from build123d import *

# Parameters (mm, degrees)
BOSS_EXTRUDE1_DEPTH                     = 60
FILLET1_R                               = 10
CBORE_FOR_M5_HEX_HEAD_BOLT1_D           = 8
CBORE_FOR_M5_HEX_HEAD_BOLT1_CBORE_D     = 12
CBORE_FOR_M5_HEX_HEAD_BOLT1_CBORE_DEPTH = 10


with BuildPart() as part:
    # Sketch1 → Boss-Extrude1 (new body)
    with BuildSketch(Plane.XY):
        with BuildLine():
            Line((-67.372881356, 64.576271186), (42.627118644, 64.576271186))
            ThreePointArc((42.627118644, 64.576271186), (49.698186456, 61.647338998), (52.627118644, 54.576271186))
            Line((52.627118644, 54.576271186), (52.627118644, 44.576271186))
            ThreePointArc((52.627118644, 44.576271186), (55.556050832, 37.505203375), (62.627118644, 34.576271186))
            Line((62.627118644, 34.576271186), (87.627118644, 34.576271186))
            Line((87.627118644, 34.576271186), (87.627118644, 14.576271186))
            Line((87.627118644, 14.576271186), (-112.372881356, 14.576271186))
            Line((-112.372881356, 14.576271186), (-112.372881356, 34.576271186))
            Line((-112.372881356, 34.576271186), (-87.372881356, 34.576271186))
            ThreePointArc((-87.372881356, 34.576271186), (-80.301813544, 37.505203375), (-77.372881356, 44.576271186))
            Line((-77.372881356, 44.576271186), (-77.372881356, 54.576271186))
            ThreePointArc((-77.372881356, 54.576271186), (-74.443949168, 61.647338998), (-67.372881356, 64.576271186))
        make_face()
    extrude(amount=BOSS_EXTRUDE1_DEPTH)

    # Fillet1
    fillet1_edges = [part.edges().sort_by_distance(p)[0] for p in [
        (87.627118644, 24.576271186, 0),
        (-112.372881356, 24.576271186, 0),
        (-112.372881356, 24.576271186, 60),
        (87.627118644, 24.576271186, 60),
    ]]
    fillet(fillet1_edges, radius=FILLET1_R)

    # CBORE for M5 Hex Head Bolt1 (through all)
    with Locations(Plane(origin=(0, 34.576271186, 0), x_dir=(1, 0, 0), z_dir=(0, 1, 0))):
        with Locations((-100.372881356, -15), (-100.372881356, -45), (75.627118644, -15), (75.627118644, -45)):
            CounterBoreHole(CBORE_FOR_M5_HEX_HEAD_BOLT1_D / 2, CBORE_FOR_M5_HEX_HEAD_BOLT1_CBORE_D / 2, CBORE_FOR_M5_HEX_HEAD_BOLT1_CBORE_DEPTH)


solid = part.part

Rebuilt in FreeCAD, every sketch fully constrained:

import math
import FreeCAD as App
import Part
import Sketcher

V = App.Vector
Q = App.Units.Quantity


def edges_at(feature, points):
    """Names of the edges that pass closest to the given points."""
    edges = feature.Shape.Edges
    near = lambda p: min(range(len(edges)), key=lambda i: edges[i].distToShape(Part.Vertex(*p))[0])
    return sorted({f"Edge{near(p) + 1}" for p in points})

doc = App.newDocument("Part")
body = doc.addObject("PartDesign::Body", "Body")

# Sketch on XY plane
sketch1 = doc.addObject("Sketcher::SketchObject", "Sketch")
body.addObject(sketch1)
sketch1.AttachmentSupport = (doc.XY_Plane, [""])
sketch1.MapMode = "FlatFace"
sketch1.addGeometry([
    Part.LineSegment(V(43, 65, 0), V(-67, 65, 0)),  # 0
    Part.ArcOfCircle(Part.Circle(V(-67, 55, 0), V(0, 0, 1), 10), math.radians(90), math.radians(180)),  # 1
    Part.LineSegment(V(-77, 55, 0), V(-77, 45, 0)),  # 2
    Part.ArcOfCircle(Part.Circle(V(-87, 45, 0), V(0, 0, 1), 10), math.radians(-90), math.radians(0)),  # 3
    Part.LineSegment(V(-87, 35, 0), V(-112, 35, 0)),  # 4
    Part.LineSegment(V(-112, 35, 0), V(-112, 15, 0)),  # 5
    Part.LineSegment(V(-112, 15, 0), V(88, 15, 0)),  # 6
    Part.LineSegment(V(88, 15, 0), V(88, 35, 0)),  # 7
    Part.LineSegment(V(88, 35, 0), V(63, 35, 0)),  # 8
    Part.ArcOfCircle(Part.Circle(V(63, 45, 0), V(0, 0, 1), 10), math.radians(-180), math.radians(-90)),  # 9
    Part.LineSegment(V(53, 45, 0), V(53, 55, 0)),  # 10
    Part.ArcOfCircle(Part.Circle(V(43, 55, 0), V(0, 0, 1), 10), math.radians(0), math.radians(90)),  # 11
], False)
sketch1.addConstraint([
    Sketcher.Constraint("Tangent", 0, 2, 1, 1),
    Sketcher.Constraint("Tangent", 1, 2, 2, 1),
    Sketcher.Constraint("Tangent", 2, 2, 3, 2),
    Sketcher.Constraint("Tangent", 3, 1, 4, 1),
    Sketcher.Constraint("Coincident", 4, 2, 5, 1),
    Sketcher.Constraint("Coincident", 5, 2, 6, 1),
    Sketcher.Constraint("Coincident", 6, 2, 7, 1),
    Sketcher.Constraint("Coincident", 7, 2, 8, 1),
    Sketcher.Constraint("Tangent", 8, 2, 9, 2),
    Sketcher.Constraint("Tangent", 9, 1, 10, 1),
    Sketcher.Constraint("Tangent", 10, 2, 11, 1),
    Sketcher.Constraint("Tangent", 11, 2, 0, 1),
    Sketcher.Constraint("Horizontal", 0),
    Sketcher.Constraint("Vertical", 2),
    Sketcher.Constraint("Horizontal", 4),
    Sketcher.Constraint("Vertical", 5),
    Sketcher.Constraint("Horizontal", 6),
    Sketcher.Constraint("Vertical", 7),
    Sketcher.Constraint("Horizontal", 8),
    Sketcher.Constraint("Vertical", 10),
    Sketcher.Constraint("Equal", 1, 3),
    Sketcher.Constraint("Equal", 3, 9),
    Sketcher.Constraint("Equal", 9, 11),
    Sketcher.Constraint("Horizontal", 3, 3, 9, 3),
    Sketcher.Constraint("Equal", 4, 8),
    Sketcher.Constraint("Radius", 1, Q("10 mm")),
    Sketcher.Constraint("DistanceX", 0, 2, 0, 1, Q("110 mm")),
    Sketcher.Constraint("DistanceX", 4, 2, 4, 1, Q("25 mm")),
    Sketcher.Constraint("DistanceY", 2, 2, 2, 1, Q("10 mm")),
    Sketcher.Constraint("DistanceY", 5, 2, 5, 1, Q("20 mm")),
    Sketcher.Constraint("DistanceX", 1, 3, -1, 1, Q("67.372881 mm")),
    Sketcher.Constraint("DistanceY", -1, 1, 1, 3, Q("54.576271 mm")),
])
pad1 = doc.addObject("PartDesign::Pad", "Pad")
body.addObject(pad1)
pad1.Profile = sketch1
pad1.Length = 60
doc.recompute()

fillet = doc.addObject("PartDesign::Fillet", "Fillet")
body.addObject(fillet)
fillet.Base = (pad1, edges_at(pad1, [
    (87.627, 24.576, 0),
    (-112.373, 24.576, 0),
    (-112.373, 24.576, 60),
    (87.627, 24.576, 60),
]))
fillet.Radius = 10

# Sketch on XZ plane
sketch2 = doc.addObject("Sketcher::SketchObject", "Sketch001")
body.addObject(sketch2)
sketch2.AttachmentSupport = (doc.XZ_Plane, [""])
sketch2.MapMode = "FlatFace"
sketch2.AttachmentOffset = App.Placement(V(0, 0, -34.576271), App.Rotation())
sketch2.addGeometry([
    Part.Circle(V(-100.4, 15, 0), V(0, 0, 1), 4),
    Part.Circle(V(-100.4, 45, 0), V(0, 0, 1), 4),
    Part.Circle(V(75.6, 15, 0), V(0, 0, 1), 4),
    Part.Circle(V(75.6, 45, 0), V(0, 0, 1), 4),
], False)
sketch2.addConstraint([
    Sketcher.Constraint("Equal", 0, 1),
    Sketcher.Constraint("Equal", 1, 2),
    Sketcher.Constraint("Equal", 2, 3),
    Sketcher.Constraint("Horizontal", 0, 3, 2, 3),
    Sketcher.Constraint("Horizontal", 1, 3, 3, 3),
    Sketcher.Constraint("Vertical", 0, 3, 1, 3),
    Sketcher.Constraint("Vertical", 2, 3, 3, 3),
    Sketcher.Constraint("Diameter", 0, Q("8 mm")),
    Sketcher.Constraint("DistanceY", -1, 1, 0, 3, Q("15 mm")),
    Sketcher.Constraint("DistanceY", -1, 1, 1, 3, Q("45 mm")),
    Sketcher.Constraint("DistanceX", 0, 3, 2, 3, Q("176 mm")),
    Sketcher.Constraint("DistanceX", 0, 3, -1, 1, Q("100.372881 mm")),
])
doc.recompute()
hole = doc.addObject("PartDesign::Hole", "Hole")
body.addObject(hole)
hole.Profile = sketch2
hole.ThreadType = "None"
hole.Diameter = 8
hole.DepthType = "ThroughAll"
hole.HoleCutType = "Counterbore"
hole.HoleCutDiameter = 12
hole.HoleCutDepth = 10
hole.Reversed = True

doc.recompute()
